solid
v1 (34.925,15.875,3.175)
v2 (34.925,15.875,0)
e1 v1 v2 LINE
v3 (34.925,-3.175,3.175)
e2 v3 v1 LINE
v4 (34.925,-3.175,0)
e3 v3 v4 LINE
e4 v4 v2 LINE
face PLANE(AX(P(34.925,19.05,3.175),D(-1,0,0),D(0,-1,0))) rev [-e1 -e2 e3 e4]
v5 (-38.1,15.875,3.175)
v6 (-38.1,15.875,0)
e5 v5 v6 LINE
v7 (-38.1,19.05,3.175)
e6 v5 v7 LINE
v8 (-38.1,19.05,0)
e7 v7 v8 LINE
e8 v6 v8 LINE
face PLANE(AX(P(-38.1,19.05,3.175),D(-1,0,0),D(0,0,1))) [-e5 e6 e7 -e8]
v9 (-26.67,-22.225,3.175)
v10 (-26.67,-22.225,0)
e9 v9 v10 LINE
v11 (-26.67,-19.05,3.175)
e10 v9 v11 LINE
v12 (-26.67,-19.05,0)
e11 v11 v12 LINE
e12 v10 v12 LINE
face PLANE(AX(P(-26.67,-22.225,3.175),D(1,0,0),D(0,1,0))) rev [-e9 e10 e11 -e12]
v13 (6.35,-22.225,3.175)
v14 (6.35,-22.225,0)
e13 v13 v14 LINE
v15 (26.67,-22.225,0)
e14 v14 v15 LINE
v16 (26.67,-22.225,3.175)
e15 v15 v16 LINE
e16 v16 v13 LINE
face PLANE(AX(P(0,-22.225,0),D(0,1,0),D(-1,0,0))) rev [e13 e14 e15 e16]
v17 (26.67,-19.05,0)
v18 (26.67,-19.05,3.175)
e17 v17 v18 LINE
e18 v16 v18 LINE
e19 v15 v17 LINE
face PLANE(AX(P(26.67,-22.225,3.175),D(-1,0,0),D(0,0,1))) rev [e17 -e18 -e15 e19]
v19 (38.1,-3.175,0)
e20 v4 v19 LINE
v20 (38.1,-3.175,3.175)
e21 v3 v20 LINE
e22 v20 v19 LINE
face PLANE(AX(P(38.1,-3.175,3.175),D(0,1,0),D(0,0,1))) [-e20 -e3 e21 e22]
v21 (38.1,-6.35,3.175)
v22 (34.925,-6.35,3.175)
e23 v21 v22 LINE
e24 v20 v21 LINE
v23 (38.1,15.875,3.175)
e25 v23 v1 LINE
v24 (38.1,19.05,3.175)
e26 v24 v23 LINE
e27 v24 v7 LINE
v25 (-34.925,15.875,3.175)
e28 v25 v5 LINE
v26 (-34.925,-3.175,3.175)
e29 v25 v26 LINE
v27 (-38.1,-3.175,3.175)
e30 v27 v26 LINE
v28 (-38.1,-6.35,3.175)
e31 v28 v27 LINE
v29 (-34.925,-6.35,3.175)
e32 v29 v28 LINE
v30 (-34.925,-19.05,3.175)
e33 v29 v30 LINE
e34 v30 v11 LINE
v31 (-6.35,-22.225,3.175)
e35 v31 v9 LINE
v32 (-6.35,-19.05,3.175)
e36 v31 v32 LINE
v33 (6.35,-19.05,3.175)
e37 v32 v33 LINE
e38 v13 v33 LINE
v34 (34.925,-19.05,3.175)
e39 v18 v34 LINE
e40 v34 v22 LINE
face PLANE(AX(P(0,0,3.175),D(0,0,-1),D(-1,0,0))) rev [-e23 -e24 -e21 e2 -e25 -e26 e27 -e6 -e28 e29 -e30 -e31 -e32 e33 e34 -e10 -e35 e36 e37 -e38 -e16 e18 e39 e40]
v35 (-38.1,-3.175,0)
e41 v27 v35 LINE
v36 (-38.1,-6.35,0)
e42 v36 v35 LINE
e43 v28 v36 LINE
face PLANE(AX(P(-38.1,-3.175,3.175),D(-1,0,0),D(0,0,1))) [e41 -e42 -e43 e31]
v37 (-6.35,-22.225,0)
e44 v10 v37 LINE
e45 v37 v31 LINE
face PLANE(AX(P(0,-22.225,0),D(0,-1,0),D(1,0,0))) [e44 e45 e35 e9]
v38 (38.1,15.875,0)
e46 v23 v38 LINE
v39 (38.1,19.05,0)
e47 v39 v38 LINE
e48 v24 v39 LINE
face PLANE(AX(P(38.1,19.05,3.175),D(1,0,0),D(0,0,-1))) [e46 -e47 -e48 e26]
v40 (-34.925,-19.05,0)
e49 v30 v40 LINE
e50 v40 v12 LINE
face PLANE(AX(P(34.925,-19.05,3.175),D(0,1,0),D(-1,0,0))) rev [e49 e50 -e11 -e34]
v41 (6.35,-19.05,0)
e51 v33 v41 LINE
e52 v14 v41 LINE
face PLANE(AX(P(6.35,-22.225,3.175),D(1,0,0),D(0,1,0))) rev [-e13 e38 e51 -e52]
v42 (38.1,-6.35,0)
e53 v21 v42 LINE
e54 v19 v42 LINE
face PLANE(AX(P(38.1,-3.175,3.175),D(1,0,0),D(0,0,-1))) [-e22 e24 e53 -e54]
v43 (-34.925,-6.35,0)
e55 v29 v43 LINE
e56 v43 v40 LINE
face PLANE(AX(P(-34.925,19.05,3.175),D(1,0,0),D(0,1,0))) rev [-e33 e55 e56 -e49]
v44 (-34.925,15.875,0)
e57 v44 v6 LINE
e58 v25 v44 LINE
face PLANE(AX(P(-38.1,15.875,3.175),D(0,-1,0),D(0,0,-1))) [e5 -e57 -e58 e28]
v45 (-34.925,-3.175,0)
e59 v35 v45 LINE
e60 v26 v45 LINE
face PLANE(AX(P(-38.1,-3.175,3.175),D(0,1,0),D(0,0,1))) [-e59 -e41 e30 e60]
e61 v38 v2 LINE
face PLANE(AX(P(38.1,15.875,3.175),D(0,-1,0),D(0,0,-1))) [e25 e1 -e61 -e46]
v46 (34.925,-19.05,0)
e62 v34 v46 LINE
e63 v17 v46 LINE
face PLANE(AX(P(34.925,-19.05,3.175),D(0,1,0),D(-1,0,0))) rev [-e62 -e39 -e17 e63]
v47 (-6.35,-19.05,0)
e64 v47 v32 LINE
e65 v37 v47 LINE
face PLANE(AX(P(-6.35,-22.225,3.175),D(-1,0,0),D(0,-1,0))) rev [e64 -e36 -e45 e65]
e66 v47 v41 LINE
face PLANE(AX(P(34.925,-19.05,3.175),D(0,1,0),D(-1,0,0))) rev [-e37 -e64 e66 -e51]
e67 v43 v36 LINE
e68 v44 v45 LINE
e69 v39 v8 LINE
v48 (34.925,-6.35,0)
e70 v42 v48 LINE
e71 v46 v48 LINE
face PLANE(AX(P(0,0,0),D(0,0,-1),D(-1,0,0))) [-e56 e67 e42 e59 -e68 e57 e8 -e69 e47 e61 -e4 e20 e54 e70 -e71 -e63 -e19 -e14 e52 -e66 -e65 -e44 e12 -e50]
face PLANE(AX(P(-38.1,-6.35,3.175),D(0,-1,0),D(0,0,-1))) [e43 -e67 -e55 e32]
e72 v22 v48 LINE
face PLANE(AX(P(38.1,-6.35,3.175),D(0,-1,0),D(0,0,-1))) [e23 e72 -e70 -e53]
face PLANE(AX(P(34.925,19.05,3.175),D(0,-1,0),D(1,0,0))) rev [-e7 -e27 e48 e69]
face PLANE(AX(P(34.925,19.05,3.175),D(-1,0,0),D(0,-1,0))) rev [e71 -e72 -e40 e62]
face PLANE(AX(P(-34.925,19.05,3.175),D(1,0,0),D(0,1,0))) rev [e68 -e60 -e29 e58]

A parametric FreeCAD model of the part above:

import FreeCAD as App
import Part
import Sketcher
Q = App.Units.Quantity


def add_polygon(sketch, points):
    """Adds a closed chain of lines whose ends are joined by coincident constraints."""
    first, n = sketch.GeometryCount, len(points)
    for a, b in zip(points, points[1:] + points[:1]):
        sketch.addGeometry(Part.LineSegment(App.Vector(*a, 0), App.Vector(*b, 0)), False)
    for i in range(n):
        sketch.addConstraint(Sketcher.Constraint("Coincident", first + i, 2, first + (i + 1) % n, 1))

doc = App.newDocument("Part")
params = doc.addObject("Spreadsheet::Sheet", "Params")
for row, (alias, value) in enumerate([
    ("sketch1_height", "1.5 in"),
    ("sketch1_width", "2.75 in"),
    ("pad1_length", "0.125 in"),
    ("sketch2_width", "0.125 in"),
    ("pad2_length", "0.125 in"),
    ("sketch3_width", "0.8 in"),
    ("sketch3_height", "0.125 in"),
    ("pad3_length", "0.125 in"),
], start=1):
    params.set(f"A{row}", alias)
    params.set(f"B{row}", "=" + value)
    params.setAlias(f"B{row}", alias)

body = doc.addObject("PartDesign::Body", "Body")

sketch1 = body.newObject("Sketcher::SketchObject", "Sketch")
sketch1.AttachmentSupport = (doc.getObject("XY_Plane"), [""])
sketch1.MapMode = "FlatFace"
add_polygon(sketch1, [(-34.925, 19.05), (-34.925, -19.05), (34.925, -19.05), (34.925, 19.05)])
sketch1.addConstraint(Sketcher.Constraint("Vertical", 0))
sketch1.addConstraint(Sketcher.Constraint("Horizontal", 1))
sketch1.addConstraint(Sketcher.Constraint("Vertical", 2))
sketch1.addConstraint(Sketcher.Constraint("Horizontal", 3))
sketch1.addConstraint(Sketcher.Constraint("Symmetric", 0, 2, 2, 2, -1, 1))
sketch1.addConstraint(Sketcher.Constraint("DistanceY", 0, 2, 0, 1, Q("1.5 in")))
sketch1.addConstraint(Sketcher.Constraint("DistanceX", 1, 1, 1, 2, Q("2.75 in")))
sketch1.setExpression("Constraints[9]", "Params.sketch1_height")
sketch1.setExpression("Constraints[10]", "Params.sketch1_width")
pad1 = body.newObject("PartDesign::Pad", "Pad")
pad1.Profile = sketch1
pad1.setExpression("Length", "Params.pad1_length")

sketch2 = body.newObject("Sketcher::SketchObject", "Sketch001")
sketch2.AttachmentSupport = (doc.getObject("XY_Plane"), [""])
sketch2.MapMode = "FlatFace"
add_polygon(sketch2, [(38.1, 19.05), (38.1, 15.875), (34.925, 15.875), (34.925, 19.05)])
add_polygon(sketch2, [(38.1, -3.175), (38.1, -6.35), (34.925, -6.35), (34.925, -3.175)])
add_polygon(sketch2, [(-34.925, 19.05), (-34.925, 15.875), (-38.1, 15.875), (-38.1, 19.05)])
add_polygon(sketch2, [(-34.925, -3.175), (-34.925, -6.35), (-38.1, -6.35), (-38.1, -3.175)])
sketch2.addConstraint(Sketcher.Constraint("Vertical", 0))
sketch2.addConstraint(Sketcher.Constraint("Horizontal", 1))
sketch2.addConstraint(Sketcher.Constraint("Vertical", 2))
sketch2.addConstraint(Sketcher.Constraint("Horizontal", 3))
sketch2.addConstraint(Sketcher.Constraint("Vertical", 4))
sketch2.addConstraint(Sketcher.Constraint("Horizontal", 5))
sketch2.addConstraint(Sketcher.Constraint("Vertical", 6))
sketch2.addConstraint(Sketcher.Constraint("Horizontal", 7))
sketch2.addConstraint(Sketcher.Constraint("Vertical", 8))
sketch2.addConstraint(Sketcher.Constraint("Horizontal", 9))
sketch2.addConstraint(Sketcher.Constraint("Vertical", 10))
sketch2.addConstraint(Sketcher.Constraint("Horizontal", 11))
sketch2.addConstraint(Sketcher.Constraint("Vertical", 12))
sketch2.addConstraint(Sketcher.Constraint("Horizontal", 13))
sketch2.addConstraint(Sketcher.Constraint("Vertical", 14))
sketch2.addConstraint(Sketcher.Constraint("Horizontal", 15))
sketch2.addConstraint(Sketcher.Constraint("Symmetric", 1, 2, 8, 2, -2))
sketch2.addConstraint(Sketcher.Constraint("Symmetric", 3, 2, 10, 2, -2))
sketch2.addConstraint(Sketcher.Constraint("Symmetric", 5, 2, 12, 2, -2))
sketch2.addConstraint(Sketcher.Constraint("Symmetric", 7, 2, 14, 2, -2))
sketch2.addConstraint(Sketcher.Constraint("Vertical", 3, 2, 4, 2))
sketch2.addConstraint(Sketcher.Constraint("Vertical", 2, 2, 5, 2))
sketch2.addConstraint(Sketcher.Constraint("Equal", 15, 0))
sketch2.addConstraint(Sketcher.Constraint("Equal", 2, 4))
sketch2.addConstraint(Sketcher.Constraint("DistanceY", 4, 2, 3, 2, Q("1 in")))
sketch2.addConstraint(Sketcher.Constraint("DistanceX", 9, 2, 0, 2, Q("3 in")))
sketch2.addConstraint(Sketcher.Constraint("DistanceX", 1, 2, 1, 1, Q("0.125 in")))
sketch2.addConstraint(Sketcher.Constraint("DistanceY", -1, 1, 2, 2, Q("0.75 in")))
sketch2.setExpression("Constraints[42]", "Params.sketch2_width")
pad2 = body.newObject("PartDesign::Pad", "Pad001")
pad2.Profile = sketch2
pad2.setExpression("Length", "Params.pad2_length")

sketch3 = body.newObject("Sketcher::SketchObject", "Sketch002")
sketch3.AttachmentSupport = (doc.getObject("XZ_Plane"), [""])
sketch3.MapMode = "FlatFace"
sketch3.AttachmentOffset = App.Placement(App.Vector(0, 0, 0.75 * 25.4), App.Rotation())
add_polygon(sketch3, [(-26.67, 3.175), (-26.67, 0), (-6.35, 0), (-6.35, 3.175)])
add_polygon(sketch3, [(6.35, 3.175), (6.35, 0), (26.67, 0), (26.67, 3.175)])
sketch3.addConstraint(Sketcher.Constraint("Vertical", 0))
sketch3.addConstraint(Sketcher.Constraint("Horizontal", 1))
sketch3.addConstraint(Sketcher.Constraint("Vertical", 2))
sketch3.addConstraint(Sketcher.Constraint("Horizontal", 3))
sketch3.addConstraint(Sketcher.Constraint("Vertical", 4))
sketch3.addConstraint(Sketcher.Constraint("Horizontal", 5))
sketch3.addConstraint(Sketcher.Constraint("Vertical", 6))
sketch3.addConstraint(Sketcher.Constraint("Horizontal", 7))
sketch3.addConstraint(Sketcher.Constraint("Symmetric", 1, 2, 4, 2, -1, 1))
sketch3.addConstraint(Sketcher.Constraint("Symmetric", 0, 2, 5, 2, -2))
sketch3.addConstraint(Sketcher.Constraint("Horizontal", 3, 2, 6, 2))
sketch3.addConstraint(Sketcher.Constraint("DistanceX", 1, 1, 1, 2, Q("0.8 in")))
sketch3.addConstraint(Sketcher.Constraint("DistanceX", 1, 2, 4, 2, Q("0.5 in")))
sketch3.addConstraint(Sketcher.Constraint("DistanceY", 0, 2, 0, 1, Q("0.125 in")))
sketch3.setExpression("Constraints[19]", "Params.sketch3_width")
sketch3.setExpression("Constraints[21]", "Params.sketch3_height")
pad3 = body.newObject("PartDesign::Pad", "Pad002")
pad3.Profile = sketch3
pad3.setExpression("Length", "Params.pad3_length")

doc.recompute()
